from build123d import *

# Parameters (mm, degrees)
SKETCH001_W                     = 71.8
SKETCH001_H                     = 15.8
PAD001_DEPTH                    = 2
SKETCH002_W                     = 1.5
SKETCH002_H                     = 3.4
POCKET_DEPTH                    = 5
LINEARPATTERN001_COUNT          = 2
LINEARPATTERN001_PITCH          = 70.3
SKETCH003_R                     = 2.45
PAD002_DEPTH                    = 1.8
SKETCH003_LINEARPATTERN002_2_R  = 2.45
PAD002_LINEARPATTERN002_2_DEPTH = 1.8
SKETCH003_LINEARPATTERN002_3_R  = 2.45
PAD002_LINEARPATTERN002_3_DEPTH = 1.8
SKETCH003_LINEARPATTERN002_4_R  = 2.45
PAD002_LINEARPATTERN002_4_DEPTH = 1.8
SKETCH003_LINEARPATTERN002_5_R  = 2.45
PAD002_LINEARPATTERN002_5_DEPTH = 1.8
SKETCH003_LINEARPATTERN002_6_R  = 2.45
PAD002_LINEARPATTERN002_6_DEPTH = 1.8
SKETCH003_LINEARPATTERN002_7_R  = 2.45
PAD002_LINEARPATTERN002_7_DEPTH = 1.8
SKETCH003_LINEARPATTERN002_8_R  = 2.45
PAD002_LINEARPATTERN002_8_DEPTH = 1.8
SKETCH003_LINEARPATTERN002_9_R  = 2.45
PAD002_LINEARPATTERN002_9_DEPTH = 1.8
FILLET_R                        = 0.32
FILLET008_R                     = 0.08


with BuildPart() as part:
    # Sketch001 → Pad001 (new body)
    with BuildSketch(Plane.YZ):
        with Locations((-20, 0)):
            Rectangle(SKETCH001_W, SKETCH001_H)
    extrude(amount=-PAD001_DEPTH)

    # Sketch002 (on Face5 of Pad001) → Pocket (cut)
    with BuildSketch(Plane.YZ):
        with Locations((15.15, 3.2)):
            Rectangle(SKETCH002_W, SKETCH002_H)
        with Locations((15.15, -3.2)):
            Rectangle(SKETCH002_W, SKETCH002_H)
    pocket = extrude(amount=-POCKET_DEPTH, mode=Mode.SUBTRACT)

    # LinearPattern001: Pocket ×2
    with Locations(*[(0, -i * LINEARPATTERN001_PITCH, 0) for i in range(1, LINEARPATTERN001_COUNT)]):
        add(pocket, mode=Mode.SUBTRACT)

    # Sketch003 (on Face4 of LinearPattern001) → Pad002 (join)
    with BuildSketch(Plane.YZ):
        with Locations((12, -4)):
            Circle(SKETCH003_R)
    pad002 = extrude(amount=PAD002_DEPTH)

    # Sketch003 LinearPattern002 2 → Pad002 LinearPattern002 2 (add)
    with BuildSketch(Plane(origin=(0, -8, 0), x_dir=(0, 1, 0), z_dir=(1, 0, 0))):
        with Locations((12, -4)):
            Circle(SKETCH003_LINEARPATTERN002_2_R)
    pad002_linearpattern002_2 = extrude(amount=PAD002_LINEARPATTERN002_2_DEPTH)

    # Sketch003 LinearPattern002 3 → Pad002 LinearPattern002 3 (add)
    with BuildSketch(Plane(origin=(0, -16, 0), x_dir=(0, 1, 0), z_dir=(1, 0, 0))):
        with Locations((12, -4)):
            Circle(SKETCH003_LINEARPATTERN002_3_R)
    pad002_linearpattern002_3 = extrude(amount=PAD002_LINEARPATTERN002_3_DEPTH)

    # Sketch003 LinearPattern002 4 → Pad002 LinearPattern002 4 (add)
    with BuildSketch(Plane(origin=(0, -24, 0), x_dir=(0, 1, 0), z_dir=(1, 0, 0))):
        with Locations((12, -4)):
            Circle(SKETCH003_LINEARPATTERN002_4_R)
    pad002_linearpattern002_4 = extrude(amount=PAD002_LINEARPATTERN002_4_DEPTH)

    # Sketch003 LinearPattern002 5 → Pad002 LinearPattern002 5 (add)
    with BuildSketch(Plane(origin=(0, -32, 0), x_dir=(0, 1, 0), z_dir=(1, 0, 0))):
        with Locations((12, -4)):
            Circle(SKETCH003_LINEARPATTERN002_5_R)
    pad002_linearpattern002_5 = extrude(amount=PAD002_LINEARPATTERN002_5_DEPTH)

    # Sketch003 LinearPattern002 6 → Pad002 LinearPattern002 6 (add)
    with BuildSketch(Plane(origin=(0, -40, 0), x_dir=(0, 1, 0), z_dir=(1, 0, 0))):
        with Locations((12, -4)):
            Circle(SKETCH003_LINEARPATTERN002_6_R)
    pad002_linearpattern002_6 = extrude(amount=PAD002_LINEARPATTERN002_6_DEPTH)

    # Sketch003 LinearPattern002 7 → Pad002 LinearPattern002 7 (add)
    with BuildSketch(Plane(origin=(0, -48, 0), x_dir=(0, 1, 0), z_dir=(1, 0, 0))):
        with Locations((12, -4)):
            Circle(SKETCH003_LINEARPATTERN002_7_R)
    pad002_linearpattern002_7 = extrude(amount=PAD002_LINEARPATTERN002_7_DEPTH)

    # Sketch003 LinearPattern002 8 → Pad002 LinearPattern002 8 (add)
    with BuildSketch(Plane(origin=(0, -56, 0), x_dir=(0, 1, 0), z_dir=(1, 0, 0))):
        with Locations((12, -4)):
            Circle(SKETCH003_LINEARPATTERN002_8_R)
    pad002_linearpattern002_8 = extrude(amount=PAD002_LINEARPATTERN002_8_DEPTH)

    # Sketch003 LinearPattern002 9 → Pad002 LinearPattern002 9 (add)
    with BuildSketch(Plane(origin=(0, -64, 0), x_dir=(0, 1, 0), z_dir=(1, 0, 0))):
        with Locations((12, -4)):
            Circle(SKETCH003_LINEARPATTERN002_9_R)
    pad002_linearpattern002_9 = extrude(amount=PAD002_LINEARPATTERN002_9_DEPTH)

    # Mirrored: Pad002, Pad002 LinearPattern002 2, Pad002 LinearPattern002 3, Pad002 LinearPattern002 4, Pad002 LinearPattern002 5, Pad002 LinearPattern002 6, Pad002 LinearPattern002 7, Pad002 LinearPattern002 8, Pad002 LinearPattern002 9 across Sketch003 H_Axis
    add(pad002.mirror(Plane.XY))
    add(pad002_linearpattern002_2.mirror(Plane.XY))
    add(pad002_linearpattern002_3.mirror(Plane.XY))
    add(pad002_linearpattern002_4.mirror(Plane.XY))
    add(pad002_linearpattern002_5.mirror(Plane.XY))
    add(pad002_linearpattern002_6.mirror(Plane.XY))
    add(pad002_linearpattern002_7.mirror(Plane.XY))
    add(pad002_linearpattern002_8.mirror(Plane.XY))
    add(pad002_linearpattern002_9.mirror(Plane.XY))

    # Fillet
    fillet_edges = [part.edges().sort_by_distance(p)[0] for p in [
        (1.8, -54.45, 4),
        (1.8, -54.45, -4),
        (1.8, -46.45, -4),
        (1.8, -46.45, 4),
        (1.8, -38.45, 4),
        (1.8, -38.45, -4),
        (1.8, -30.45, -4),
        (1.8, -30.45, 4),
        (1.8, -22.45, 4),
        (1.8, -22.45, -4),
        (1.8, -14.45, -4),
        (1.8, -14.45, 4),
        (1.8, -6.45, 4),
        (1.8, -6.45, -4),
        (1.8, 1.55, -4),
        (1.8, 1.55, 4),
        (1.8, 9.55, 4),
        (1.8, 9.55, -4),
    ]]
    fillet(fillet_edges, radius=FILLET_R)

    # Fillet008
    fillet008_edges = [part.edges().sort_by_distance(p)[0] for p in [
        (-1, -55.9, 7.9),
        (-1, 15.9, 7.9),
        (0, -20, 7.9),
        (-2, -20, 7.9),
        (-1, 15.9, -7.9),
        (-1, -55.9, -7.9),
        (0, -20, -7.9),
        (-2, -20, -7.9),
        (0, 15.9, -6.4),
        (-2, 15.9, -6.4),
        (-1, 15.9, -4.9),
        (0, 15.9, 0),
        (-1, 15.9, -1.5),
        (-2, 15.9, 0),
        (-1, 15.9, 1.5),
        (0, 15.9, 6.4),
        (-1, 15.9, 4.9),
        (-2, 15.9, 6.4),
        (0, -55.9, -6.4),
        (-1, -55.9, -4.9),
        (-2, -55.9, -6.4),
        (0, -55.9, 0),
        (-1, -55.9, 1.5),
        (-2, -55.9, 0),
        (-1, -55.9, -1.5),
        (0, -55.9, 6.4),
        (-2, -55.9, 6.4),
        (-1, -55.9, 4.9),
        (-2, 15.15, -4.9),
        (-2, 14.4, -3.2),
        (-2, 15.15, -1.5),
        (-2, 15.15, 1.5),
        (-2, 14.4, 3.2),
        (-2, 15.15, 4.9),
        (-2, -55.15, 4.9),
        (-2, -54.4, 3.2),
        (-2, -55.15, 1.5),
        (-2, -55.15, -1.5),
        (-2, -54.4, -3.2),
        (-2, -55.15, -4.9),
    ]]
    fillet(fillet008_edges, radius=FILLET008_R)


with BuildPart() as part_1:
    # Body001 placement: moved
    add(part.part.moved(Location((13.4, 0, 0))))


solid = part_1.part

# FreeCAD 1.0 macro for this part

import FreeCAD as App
import Part
import Sketcher

V = App.Vector


def edges_at(feature, points):
    """Names of the edges that pass closest to the given points."""
    edges = feature.Shape.Edges
    near = lambda p: min(range(len(edges)), key=lambda i: edges[i].distToShape(Part.Vertex(*p))[0])
    return sorted({f"Edge{near(p) + 1}" for p in points})


def add_polygon(sketch, points):
    """Adds a closed chain of lines whose ends are joined by coincident constraints."""
    first, n = sketch.GeometryCount, len(points)
    for a, b in zip(points, points[1:] + points[:1]):
        sketch.addGeometry(Part.LineSegment(App.Vector(*a, 0), App.Vector(*b, 0)), False)
    for i in range(n):
        sketch.addConstraint(Sketcher.Constraint("Coincident", first + i, 2, first + (i + 1) % n, 1))

doc = App.newDocument("Part")
params = doc.addObject("Spreadsheet::Sheet", "Params")
for row, (alias, value) in enumerate([
    ("sketch1_width", "71.8 mm"),
    ("sketch1_height", "15.8 mm"),
    ("pad1_length", "2 mm"),
    ("sketch2_width", "1.5 mm"),
    ("sketch2_height", "3.4 mm"),
    ("pocket1_length", "5 mm"),
    ("linearpattern_pitch", "70.3 mm"),
    ("sketch3_diameter", "4.9 mm"),
    ("pad2_length", "1.8 mm"),
    ("sketch4_diameter", "4.9 mm"),
    ("pad3_length", "1.8 mm"),
    ("sketch5_diameter", "4.9 mm"),
    ("pad4_length", "1.8 mm"),
    ("sketch6_diameter", "4.9 mm"),
    ("pad5_length", "1.8 mm"),
    ("sketch7_diameter", "4.9 mm"),
    ("pad6_length", "1.8 mm"),
    ("sketch8_diameter", "4.9 mm"),
    ("pad7_length", "1.8 mm"),
    ("sketch9_diameter", "4.9 mm"),
    ("pad8_length", "1.8 mm"),
    ("sketch10_diameter", "4.9 mm"),
    ("pad9_length", "1.8 mm"),
    ("sketch11_diameter", "4.9 mm"),
    ("pad10_length", "1.8 mm"),
    ("fillet_radius", "0.32 mm"),
    ("fillet2_radius", "0.08 mm"),
], start=1):
    params.set(f"A{row}", alias)
    params.set(f"B{row}", "=" + value)
    params.setAlias(f"B{row}", alias)

body = doc.addObject("PartDesign::Body", "Body")

sketch1 = doc.addObject("Sketcher::SketchObject", "Sketch")
body.addObject(sketch1)
sketch1.AttachmentSupport = (doc.YZ_Plane, [""])
sketch1.MapMode = "FlatFace"
add_polygon(sketch1, [(-56, 8), (-56, -8), (16, -8), (16, 8)])
sketch1.addConstraint(Sketcher.Constraint("Vertical", 0))
sketch1.addConstraint(Sketcher.Constraint("Horizontal", 1))
sketch1.addConstraint(Sketcher.Constraint("Vertical", 2))
sketch1.addConstraint(Sketcher.Constraint("Horizontal", 3))
sketch1.addConstraint(Sketcher.Constraint("DistanceX", 1, 1, 1, 2, 71.8))
sketch1.addConstraint(Sketcher.Constraint("DistanceY", 0, 2, 0, 1, 15.8))
sketch1.addConstraint(Sketcher.Constraint("DistanceX", 0, 2, -1, 1, 55.9))
sketch1.addConstraint(Sketcher.Constraint("DistanceY", 0, 2, -1, 1, 7.9))
sketch1.setExpression("Constraints[8]", "Params.sketch1_width")
sketch1.setExpression("Constraints[9]", "Params.sketch1_height")
pad1 = doc.addObject("PartDesign::Pad", "Pad")
body.addObject(pad1)
pad1.Profile = sketch1
pad1.setExpression("Length", "Params.pad1_length")
pad1.Reversed = True

sketch2 = doc.addObject("Sketcher::SketchObject", "Sketch001")
body.addObject(sketch2)
sketch2.AttachmentSupport = (doc.YZ_Plane, [""])
sketch2.MapMode = "FlatFace"
add_polygon(sketch2, [(14.4, 4.9), (14.4, 1.5), (15.9, 1.5), (15.9, 4.9)])
add_polygon(sketch2, [(14.4, -1.5), (14.4, -4.9), (15.9, -4.9), (15.9, -1.5)])
sketch2.addConstraint(Sketcher.Constraint("Vertical", 0))
sketch2.addConstraint(Sketcher.Constraint("Horizontal", 1))
sketch2.addConstraint(Sketcher.Constraint("Vertical", 2))
sketch2.addConstraint(Sketcher.Constraint("Horizontal", 3))
sketch2.addConstraint(Sketcher.Constraint("Vertical", 4))
sketch2.addConstraint(Sketcher.Constraint("Horizontal", 5))
sketch2.addConstraint(Sketcher.Constraint("Vertical", 6))
sketch2.addConstraint(Sketcher.Constraint("Horizontal", 7))
sketch2.addConstraint(Sketcher.Constraint("Symmetric", 3, 2, 4, 2, -1))
sketch2.addConstraint(Sketcher.Constraint("Symmetric", 1, 2, 6, 2, -1))
sketch2.addConstraint(Sketcher.Constraint("DistanceX", 1, 1, 1, 2, 1.5))
sketch2.addConstraint(Sketcher.Constraint("DistanceY", 0, 2, 0, 1, 3.4))
sketch2.addConstraint(Sketcher.Constraint("DistanceY", 6, 2, 1, 2, 3.0))
sketch2.addConstraint(Sketcher.Constraint("DistanceX", -1, 1, 0, 2, 14.4))
sketch2.setExpression("Constraints[18]", "Params.sketch2_width")
sketch2.setExpression("Constraints[19]", "Params.sketch2_height")
pocket1 = doc.addObject("PartDesign::Pocket", "Pocket")
body.addObject(pocket1)
pocket1.Profile = sketch2
pocket1.setExpression("Length", "Params.pocket1_length")
doc.recompute()

linearpattern = doc.addObject("PartDesign::LinearPattern", "LinearPattern")
body.addObject(linearpattern)
linearpattern.Originals = [pocket1]
linearpattern.Direction = (doc.Y_Axis, [""])
linearpattern.Mode = "offset"
linearpattern.setExpression("Offset", "Params.linearpattern_pitch")
linearpattern.Occurrences = 2
linearpattern.Reversed = True
body.Tip = linearpattern

sketch3 = doc.addObject("Sketcher::SketchObject", "Sketch002")
body.addObject(sketch3)
sketch3.AttachmentSupport = (doc.YZ_Plane, [""])
sketch3.MapMode = "FlatFace"
sketch3.addGeometry(Part.Circle(V(12, -4, 0), V(0, 0, 1), 2.5), False)
sketch3.addConstraint(Sketcher.Constraint("Diameter", 0, 4.9))
sketch3.addConstraint(Sketcher.Constraint("DistanceX", -1, 1, 0, 3, 12.0))
sketch3.addConstraint(Sketcher.Constraint("DistanceY", 0, 3, -1, 1, 4.0))
sketch3.setExpression("Constraints[0]", "Params.sketch3_diameter")
pad2 = doc.addObject("PartDesign::Pad", "Pad001")
body.addObject(pad2)
pad2.Profile = sketch3
pad2.setExpression("Length", "Params.pad2_length")

sketch4 = doc.addObject("Sketcher::SketchObject", "Sketch003")
body.addObject(sketch4)
sketch4.AttachmentSupport = (doc.YZ_Plane, [""])
sketch4.MapMode = "FlatFace"
sketch4.addGeometry(Part.Circle(V(4, -4, 0), V(0, 0, 1), 2.5), False)
sketch4.addConstraint(Sketcher.Constraint("Diameter", 0, 4.9))
sketch4.addConstraint(Sketcher.Constraint("DistanceX", -1, 1, 0, 3, 4.0))
sketch4.addConstraint(Sketcher.Constraint("DistanceY", 0, 3, -1, 1, 4.0))
sketch4.setExpression("Constraints[0]", "Params.sketch4_diameter")
pad3 = doc.addObject("PartDesign::Pad", "Pad002")
body.addObject(pad3)
pad3.Profile = sketch4
pad3.setExpression("Length", "Params.pad3_length")

sketch5 = doc.addObject("Sketcher::SketchObject", "Sketch004")
body.addObject(sketch5)
sketch5.AttachmentSupport = (doc.YZ_Plane, [""])
sketch5.MapMode = "FlatFace"
sketch5.addGeometry(Part.Circle(V(-4, -4, 0), V(0, 0, 1), 2.5), False)
sketch5.addConstraint(Sketcher.Constraint("Diameter", 0, 4.9))
sketch5.addConstraint(Sketcher.Constraint("DistanceX", 0, 3, -1, 1, 4.0))
sketch5.addConstraint(Sketcher.Constraint("DistanceY", 0, 3, -1, 1, 4.0))
sketch5.setExpression("Constraints[0]", "Params.sketch5_diameter")
pad4 = doc.addObject("PartDesign::Pad", "Pad003")
body.addObject(pad4)
pad4.Profile = sketch5
pad4.setExpression("Length", "Params.pad4_length")

sketch6 = doc.addObject("Sketcher::SketchObject", "Sketch005")
body.addObject(sketch6)
sketch6.AttachmentSupport = (doc.YZ_Plane, [""])
sketch6.MapMode = "FlatFace"
sketch6.addGeometry(Part.Circle(V(-12, -4, 0), V(0, 0, 1), 2.5), False)
sketch6.addConstraint(Sketcher.Constraint("Diameter", 0, 4.9))
sketch6.addConstraint(Sketcher.Constraint("DistanceX", 0, 3, -1, 1, 12.0))
sketch6.addConstraint(Sketcher.Constraint("DistanceY", 0, 3, -1, 1, 4.0))
sketch6.setExpression("Constraints[0]", "Params.sketch6_diameter")
pad5 = doc.addObject("PartDesign::Pad", "Pad004")
body.addObject(pad5)
pad5.Profile = sketch6
pad5.setExpression("Length", "Params.pad5_length")

sketch7 = doc.addObject("Sketcher::SketchObject", "Sketch006")
body.addObject(sketch7)
sketch7.AttachmentSupport = (doc.YZ_Plane, [""])
sketch7.MapMode = "FlatFace"
sketch7.addGeometry(Part.Circle(V(-20, -4, 0), V(0, 0, 1), 2.5), False)
sketch7.addConstraint(Sketcher.Constraint("Diameter", 0, 4.9))
sketch7.addConstraint(Sketcher.Constraint("DistanceX", 0, 3, -1, 1, 20.0))
sketch7.addConstraint(Sketcher.Constraint("DistanceY", 0, 3, -1, 1, 4.0))
sketch7.setExpression("Constraints[0]", "Params.sketch7_diameter")
pad6 = doc.addObject("PartDesign::Pad", "Pad005")
body.addObject(pad6)
pad6.Profile = sketch7
pad6.setExpression("Length", "Params.pad6_length")

sketch8 = doc.addObject("Sketcher::SketchObject", "Sketch007")
body.addObject(sketch8)
sketch8.AttachmentSupport = (doc.YZ_Plane, [""])
sketch8.MapMode = "FlatFace"
sketch8.addGeometry(Part.Circle(V(-28, -4, 0), V(0, 0, 1), 2.5), False)
sketch8.addConstraint(Sketcher.Constraint("Diameter", 0, 4.9))
sketch8.addConstraint(Sketcher.Constraint("DistanceX", 0, 3, -1, 1, 28.0))
sketch8.addConstraint(Sketcher.Constraint("DistanceY", 0, 3, -1, 1, 4.0))
sketch8.setExpression("Constraints[0]", "Params.sketch8_diameter")
pad7 = doc.addObject("PartDesign::Pad", "Pad006")
body.addObject(pad7)
pad7.Profile = sketch8
pad7.setExpression("Length", "Params.pad7_length")

sketch9 = doc.addObject("Sketcher::SketchObject", "Sketch008")
body.addObject(sketch9)
sketch9.AttachmentSupport = (doc.YZ_Plane, [""])
sketch9.MapMode = "FlatFace"
sketch9.addGeometry(Part.Circle(V(-36, -4, 0), V(0, 0, 1), 2.5), False)
sketch9.addConstraint(Sketcher.Constraint("Diameter", 0, 4.9))
sketch9.addConstraint(Sketcher.Constraint("DistanceX", 0, 3, -1, 1, 36.0))
sketch9.addConstraint(Sketcher.Constraint("DistanceY", 0, 3, -1, 1, 4.0))
sketch9.setExpression("Constraints[0]", "Params.sketch9_diameter")
pad8 = doc.addObject("PartDesign::Pad", "Pad007")
body.addObject(pad8)
pad8.Profile = sketch9
pad8.setExpression("Length", "Params.pad8_length")

sketch10 = doc.addObject("Sketcher::SketchObject", "Sketch009")
body.addObject(sketch10)
sketch10.AttachmentSupport = (doc.YZ_Plane, [""])
sketch10.MapMode = "FlatFace"
sketch10.addGeometry(Part.Circle(V(-44, -4, 0), V(0, 0, 1), 2.5), False)
sketch10.addConstraint(Sketcher.Constraint("Diameter", 0, 4.9))
sketch10.addConstraint(Sketcher.Constraint("DistanceX", 0, 3, -1, 1, 44.0))
sketch10.addConstraint(Sketcher.Constraint("DistanceY", 0, 3, -1, 1, 4.0))
sketch10.setExpression("Constraints[0]", "Params.sketch10_diameter")
pad9 = doc.addObject("PartDesign::Pad", "Pad008")
body.addObject(pad9)
pad9.Profile = sketch10
pad9.setExpression("Length", "Params.pad9_length")

sketch11 = doc.addObject("Sketcher::SketchObject", "Sketch010")
body.addObject(sketch11)
sketch11.AttachmentSupport = (doc.YZ_Plane, [""])
sketch11.MapMode = "FlatFace"
sketch11.addGeometry(Part.Circle(V(-52, -4, 0), V(0, 0, 1), 2.5), False)
sketch11.addConstraint(Sketcher.Constraint("Diameter", 0, 4.9))
sketch11.addConstraint(Sketcher.Constraint("DistanceX", 0, 3, -1, 1, 52.0))
sketch11.addConstraint(Sketcher.Constraint("DistanceY", 0, 3, -1, 1, 4.0))
sketch11.setExpression("Constraints[0]", "Params.sketch11_diameter")
pad10 = doc.addObject("PartDesign::Pad", "Pad009")
body.addObject(pad10)
pad10.Profile = sketch11
pad10.setExpression("Length", "Params.pad10_length")
doc.recompute()

mirrored = doc.addObject("PartDesign::Mirrored", "Mirrored")
body.addObject(mirrored)
mirrored.Originals = [pad2, pad3, pad4, pad5, pad6, pad7, pad8, pad9, pad10]
mirrored.MirrorPlane = (doc.XY_Plane, [""])
body.Tip = mirrored
doc.recompute()

fillet = doc.addObject("PartDesign::Fillet", "Fillet")
body.addObject(fillet)
fillet.Base = (mirrored, edges_at(mirrored, [
    (1.8, -54.45, 4),
    (1.8, -54.45, -4),
    (1.8, -46.45, -4),
    (1.8, -46.45, 4),
    (1.8, -38.45, 4),
    (1.8, -38.45, -4),
    (1.8, -30.45, -4),
    (1.8, -30.45, 4),
    (1.8, -22.45, 4),
    (1.8, -22.45, -4),
    (1.8, -14.45, -4),
    (1.8, -14.45, 4),
    (1.8, -6.45, 4),
    (1.8, -6.45, -4),
    (1.8, 1.55, -4),
    (1.8, 1.55, 4),
    (1.8, 9.55, 4),
    (1.8, 9.55, -4),
]))
fillet.setExpression("Radius", "Params.fillet_radius")
doc.recompute()

fillet2 = doc.addObject("PartDesign::Fillet", "Fillet001")
body.addObject(fillet2)
fillet2.Base = (fillet, edges_at(fillet, [
    (-1, -55.9, 7.9),
    (-1, 15.9, 7.9),
    (0, -20, 7.9),
    (-2, -20, 7.9),
    (-1, 15.9, -7.9),
    (-1, -55.9, -7.9),
    (0, -20, -7.9),
    (-2, -20, -7.9),
    (0, 15.9, -6.4),
    (-2, 15.9, -6.4),
    (-1, 15.9, -4.9),
    (0, 15.9, 0),
    (-1, 15.9, -1.5),
    (-2, 15.9, 0),
    (-1, 15.9, 1.5),
    (0, 15.9, 6.4),
    (-1, 15.9, 4.9),
    (-2, 15.9, 6.4),
    (0, -55.9, -6.4),
    (-1, -55.9, -4.9),
    (-2, -55.9, -6.4),
    (0, -55.9, 0),
    (-1, -55.9, 1.5),
    (-2, -55.9, 0),
    (-1, -55.9, -1.5),
    (0, -55.9, 6.4),
    (-2, -55.9, 6.4),
    (-1, -55.9, 4.9),
    (-2, 15.15, -4.9),
    (-2, 14.4, -3.2),
    (-2, 15.15, -1.5),
    (-2, 15.15, 1.5),
    (-2, 14.4, 3.2),
    (-2, 15.15, 4.9),
    (-2, -55.15, 4.9),
    (-2, -54.4, 3.2),
    (-2, -55.15, 1.5),
    (-2, -55.15, -1.5),
    (-2, -54.4, -3.2),
    (-2, -55.15, -4.9),
]))
fillet2.setExpression("Radius", "Params.fillet2_radius")
body2 = doc.addObject("PartDesign::Body", "Body001")
doc.recompute()

body.Placement = App.Placement(V(13.4, 0, 0), App.Rotation(V(0, 0, 1), 0))
boolean = doc.addObject("PartDesign::Boolean", "Boolean")
body2.addObject(boolean)
boolean.Type = "Fuse"
boolean.addObjects([body])

doc.recompute()
